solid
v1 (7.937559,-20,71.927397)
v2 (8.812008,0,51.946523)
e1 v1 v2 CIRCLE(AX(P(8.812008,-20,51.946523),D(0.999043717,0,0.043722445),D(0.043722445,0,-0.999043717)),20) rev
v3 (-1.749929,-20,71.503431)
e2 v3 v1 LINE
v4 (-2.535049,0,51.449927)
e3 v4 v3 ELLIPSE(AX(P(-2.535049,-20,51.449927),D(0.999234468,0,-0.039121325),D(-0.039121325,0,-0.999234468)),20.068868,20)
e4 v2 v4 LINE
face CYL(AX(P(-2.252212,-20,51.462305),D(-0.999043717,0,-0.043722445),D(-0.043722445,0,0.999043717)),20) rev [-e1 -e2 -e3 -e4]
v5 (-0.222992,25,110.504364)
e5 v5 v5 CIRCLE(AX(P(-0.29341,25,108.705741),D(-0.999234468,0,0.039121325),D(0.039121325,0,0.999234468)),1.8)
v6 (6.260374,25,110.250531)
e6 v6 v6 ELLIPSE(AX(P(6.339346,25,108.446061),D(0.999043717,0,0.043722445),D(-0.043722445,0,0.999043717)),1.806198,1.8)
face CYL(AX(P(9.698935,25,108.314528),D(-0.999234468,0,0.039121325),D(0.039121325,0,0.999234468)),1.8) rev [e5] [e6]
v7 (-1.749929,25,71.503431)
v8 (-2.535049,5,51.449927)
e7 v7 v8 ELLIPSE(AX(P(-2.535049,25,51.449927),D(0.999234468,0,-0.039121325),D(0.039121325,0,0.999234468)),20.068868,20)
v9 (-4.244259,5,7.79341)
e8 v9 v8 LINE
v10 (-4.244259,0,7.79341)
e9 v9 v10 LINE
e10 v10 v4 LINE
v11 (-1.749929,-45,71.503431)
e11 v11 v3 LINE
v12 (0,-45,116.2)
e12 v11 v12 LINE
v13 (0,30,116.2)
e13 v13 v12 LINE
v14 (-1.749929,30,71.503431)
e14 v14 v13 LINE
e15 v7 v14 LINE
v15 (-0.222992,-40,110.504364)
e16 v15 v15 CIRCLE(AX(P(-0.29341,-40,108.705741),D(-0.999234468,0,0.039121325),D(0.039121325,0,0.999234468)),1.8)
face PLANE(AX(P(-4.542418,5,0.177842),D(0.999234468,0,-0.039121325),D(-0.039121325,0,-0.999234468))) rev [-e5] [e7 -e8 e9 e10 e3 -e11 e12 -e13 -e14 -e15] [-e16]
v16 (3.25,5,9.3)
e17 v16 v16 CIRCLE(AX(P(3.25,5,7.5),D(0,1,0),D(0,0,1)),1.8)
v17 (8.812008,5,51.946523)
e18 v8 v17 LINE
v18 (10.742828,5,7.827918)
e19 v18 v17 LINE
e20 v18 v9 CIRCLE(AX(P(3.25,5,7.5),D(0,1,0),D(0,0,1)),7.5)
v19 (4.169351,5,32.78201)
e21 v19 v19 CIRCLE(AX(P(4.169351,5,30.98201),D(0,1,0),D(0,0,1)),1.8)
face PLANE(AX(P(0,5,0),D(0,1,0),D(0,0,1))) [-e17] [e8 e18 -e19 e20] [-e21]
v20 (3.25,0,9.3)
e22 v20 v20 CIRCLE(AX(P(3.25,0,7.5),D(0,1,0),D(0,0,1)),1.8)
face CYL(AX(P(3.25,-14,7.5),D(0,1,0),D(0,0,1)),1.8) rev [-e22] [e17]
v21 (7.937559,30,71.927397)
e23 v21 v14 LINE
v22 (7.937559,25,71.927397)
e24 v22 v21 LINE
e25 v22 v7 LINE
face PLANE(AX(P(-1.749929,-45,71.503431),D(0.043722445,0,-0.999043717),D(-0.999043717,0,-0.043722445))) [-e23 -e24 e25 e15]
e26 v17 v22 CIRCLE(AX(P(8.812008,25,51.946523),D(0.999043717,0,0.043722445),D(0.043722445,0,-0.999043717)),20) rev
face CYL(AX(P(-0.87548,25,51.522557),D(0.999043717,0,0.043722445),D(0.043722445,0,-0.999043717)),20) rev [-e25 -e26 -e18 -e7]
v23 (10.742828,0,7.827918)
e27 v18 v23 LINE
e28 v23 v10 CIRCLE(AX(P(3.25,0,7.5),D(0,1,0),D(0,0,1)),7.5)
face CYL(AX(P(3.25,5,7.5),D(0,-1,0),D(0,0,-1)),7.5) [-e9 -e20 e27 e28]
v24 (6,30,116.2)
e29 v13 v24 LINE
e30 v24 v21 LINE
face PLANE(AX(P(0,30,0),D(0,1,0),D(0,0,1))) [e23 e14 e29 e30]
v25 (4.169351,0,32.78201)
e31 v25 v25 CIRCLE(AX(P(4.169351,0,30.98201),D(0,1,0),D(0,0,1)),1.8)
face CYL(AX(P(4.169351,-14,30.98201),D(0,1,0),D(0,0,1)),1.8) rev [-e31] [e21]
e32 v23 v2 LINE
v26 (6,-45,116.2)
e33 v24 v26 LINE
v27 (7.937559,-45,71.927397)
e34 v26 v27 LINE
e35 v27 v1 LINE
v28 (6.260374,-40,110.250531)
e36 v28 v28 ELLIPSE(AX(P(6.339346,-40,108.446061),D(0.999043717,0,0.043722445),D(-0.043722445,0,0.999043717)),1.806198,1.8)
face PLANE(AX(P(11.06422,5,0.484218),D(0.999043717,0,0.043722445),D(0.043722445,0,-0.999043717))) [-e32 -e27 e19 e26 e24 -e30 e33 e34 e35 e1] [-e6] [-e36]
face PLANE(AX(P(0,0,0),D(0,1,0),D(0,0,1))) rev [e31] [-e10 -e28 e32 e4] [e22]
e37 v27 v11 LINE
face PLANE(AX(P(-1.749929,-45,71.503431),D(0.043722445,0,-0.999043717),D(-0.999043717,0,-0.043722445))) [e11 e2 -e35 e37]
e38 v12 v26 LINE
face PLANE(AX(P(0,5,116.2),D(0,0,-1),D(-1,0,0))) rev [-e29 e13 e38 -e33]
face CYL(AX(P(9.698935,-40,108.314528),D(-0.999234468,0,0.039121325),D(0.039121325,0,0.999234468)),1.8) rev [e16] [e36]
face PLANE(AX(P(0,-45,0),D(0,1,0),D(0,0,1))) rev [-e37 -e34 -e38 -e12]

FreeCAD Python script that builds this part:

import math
import FreeCAD as App
import Part
import Sketcher


def edges_at(feature, points):
    """Names of the edges that pass closest to the given points."""
    edges = feature.Shape.Edges
    near = lambda p: min(range(len(edges)), key=lambda i: edges[i].distToShape(Part.Vertex(*p))[0])
    return sorted({f"Edge{near(p) + 1}" for p in points})

doc = App.newDocument("Part")
body = doc.addObject("PartDesign::Body", "Body")

sketch1 = body.newObject("Sketcher::SketchObject", "Sketch")
sketch1.AttachmentSupport = (doc.getObject("XZ_Plane"), [""])
sketch1.MapMode = "FlatFace"
sketch1.addGeometry(Part.ArcOfCircle(Part.Circle(App.Vector(3.25, 7.5, 0), App.Vector(0, 0, 1), 7.5), math.radians(177.757941), math.radians(244.320711)), False)
sketch1.addGeometry(Part.LineSegment(App.Vector(-4.244259, 7.79341, 0), App.Vector(0, 14.259253, 0)), False)
sketch1.addGeometry(Part.LineSegment(App.Vector(0, 14.259253, 0), App.Vector(0, 0.740747, 0)), False)
sketch1.addGeometry(Part.LineSegment(App.Vector(6, 0.522357, 0), App.Vector(6, 14.477643, 0)), False)
sketch1.addGeometry(Part.LineSegment(App.Vector(6, 14.477643, 0), App.Vector(10.742828, 7.827918, 0)), False)
sketch1.addGeometry(Part.ArcOfCircle(Part.Circle(App.Vector(3.249998, 7.5, 0), App.Vector(0, 0, 1), 7.500002), math.radians(0), math.radians(2.50591)), False)
sketch1.addGeometry(Part.ArcOfCircle(Part.Circle(App.Vector(3.25, 7.5, 0), App.Vector(0, 0, 1), 7.5), math.radians(-68.489812), math.radians(0)), False)
sketch1.addGeometry(Part.LineSegment(App.Vector(0, 0.740747, 0), App.Vector(0, 14.259253, 0)), False)
sketch1.addGeometry(Part.ArcOfCircle(Part.Circle(App.Vector(3.25, 7.5, 0), App.Vector(0, 0, 1), 7.5), math.radians(68.489812), math.radians(115.679289)), False)
sketch1.addGeometry(Part.LineSegment(App.Vector(6, 14.477643, 0), App.Vector(6, 0.522357, 0)), False)
sketch1.addGeometry(Part.ArcOfCircle(Part.Circle(App.Vector(3.25, 7.5, 0), App.Vector(0, 0, 1), 7.5), math.radians(-90), math.radians(-68.489812)), False)
sketch1.addGeometry(Part.ArcOfCircle(Part.Circle(App.Vector(3.25, 7.5, 0), App.Vector(0, 0, 1), 7.5), math.radians(-115.679289), math.radians(-90)), False)
sketch1.addGeometry(Part.ArcOfCircle(Part.Circle(App.Vector(3.25, 7.5, 0), App.Vector(0, 0, 1), 7.5), math.radians(115.679289), math.radians(177.757941)), False)
sketch1.addGeometry(Part.LineSegment(App.Vector(-4.244259, 7.79341, 0), App.Vector(0, 116.2, 0)), False)
sketch1.addGeometry(Part.LineSegment(App.Vector(0, 116.2, 0), App.Vector(0, 14.259253, 0)), False)
sketch1.addGeometry(Part.LineSegment(App.Vector(6, 14.477643, 0), App.Vector(6, 116.2, 0)), False)
sketch1.addGeometry(Part.LineSegment(App.Vector(6, 116.2, 0), App.Vector(10.742828, 7.827918, 0)), False)
sketch1.addGeometry(Part.ArcOfCircle(Part.Circle(App.Vector(3.25, 7.5, 0), App.Vector(0, 0, 1), 7.5), math.radians(2.50591), math.radians(68.489812)), False)
sketch1.addGeometry(Part.LineSegment(App.Vector(0, 14.259253, 0), App.Vector(0, 116.2, 0)), False)
sketch1.addGeometry(Part.LineSegment(App.Vector(0, 116.2, 0), App.Vector(6, 116.2, 0)), False)
sketch1.addGeometry(Part.LineSegment(App.Vector(6, 116.2, 0), App.Vector(6, 14.477643, 0)), False)
sketch1.addGeometry(Part.ArcOfCircle(Part.Circle(App.Vector(3.25, 7.5, 0), App.Vector(0, 0, 1), 7.5), math.radians(68.489812), math.radians(115.679289)), False)
sketch1.addGeometry(Part.LineSegment(App.Vector(10.742828, 7.827918, 0), App.Vector(6, 14.477643, 0)), False)
sketch1.addGeometry(Part.ArcOfCircle(Part.Circle(App.Vector(3.25, 7.5, 0), App.Vector(0, 0, 1), 7.5), math.radians(2.50591), math.radians(68.489812)), False)
sketch1.addGeometry(Part.LineSegment(App.Vector(0, 14.259253, 0), App.Vector(-4.244259, 7.79341, 0)), False)
sketch1.addGeometry(Part.ArcOfCircle(Part.Circle(App.Vector(3.25, 7.5, 0), App.Vector(0, 0, 1), 7.5), math.radians(115.679289), math.radians(177.757941)), False)
sketch1.addConstraint(Sketcher.Constraint("Coincident", 0, 1, 1, 1))
sketch1.addConstraint(Sketcher.Constraint("Coincident", 1, 2, 2, 1))
sketch1.addConstraint(Sketcher.Constraint("Coincident", 2, 2, 0, 2))
sketch1.addConstraint(Sketcher.Constraint("Coincident", 3, 2, 4, 1))
sketch1.addConstraint(Sketcher.Constraint("Coincident", 4, 2, 5, 2))
sketch1.addConstraint(Sketcher.Constraint("Tangent", 5, 1, 6, 2))
sketch1.addConstraint(Sketcher.Constraint("Coincident", 6, 1, 3, 1))
sketch1.addConstraint(Sketcher.Constraint("Coincident", 7, 2, 8, 2))
sketch1.addConstraint(Sketcher.Constraint("Coincident", 8, 1, 9, 1))
sketch1.addConstraint(Sketcher.Constraint("Coincident", 9, 2, 10, 2))
sketch1.addConstraint(Sketcher.Constraint("Tangent", 10, 1, 11, 2))
sketch1.addConstraint(Sketcher.Constraint("Coincident", 11, 1, 7, 1))
sketch1.addConstraint(Sketcher.Constraint("Tangent", 12, 2, 13, 1))
sketch1.addConstraint(Sketcher.Constraint("Coincident", 13, 2, 14, 1))
sketch1.addConstraint(Sketcher.Constraint("Coincident", 14, 2, 12, 1))
sketch1.addConstraint(Sketcher.Constraint("Coincident", 15, 2, 16, 1))
sketch1.addConstraint(Sketcher.Constraint("Tangent", 16, 2, 17, 1))
sketch1.addConstraint(Sketcher.Constraint("Coincident", 17, 2, 15, 1))
sketch1.addConstraint(Sketcher.Constraint("Coincident", 18, 2, 19, 1))
sketch1.addConstraint(Sketcher.Constraint("Coincident", 19, 2, 20, 1))
sketch1.addConstraint(Sketcher.Constraint("Coincident", 20, 2, 21, 1))
sketch1.addConstraint(Sketcher.Constraint("Coincident", 21, 2, 18, 1))
sketch1.addConstraint(Sketcher.Constraint("Coincident", 22, 1, 23, 1))
sketch1.addConstraint(Sketcher.Constraint("Coincident", 23, 2, 22, 2))
sketch1.addConstraint(Sketcher.Constraint("Coincident", 24, 1, 25, 1))
sketch1.addConstraint(Sketcher.Constraint("Coincident", 25, 2, 24, 2))
sketch1.addConstraint(Sketcher.Constraint("Vertical", 2))
sketch1.addConstraint(Sketcher.Constraint("Vertical", 3))
sketch1.addConstraint(Sketcher.Constraint("Vertical", 7))
sketch1.addConstraint(Sketcher.Constraint("Vertical", 9))
sketch1.addConstraint(Sketcher.Constraint("Vertical", 14))
sketch1.addConstraint(Sketcher.Constraint("Vertical", 15))
sketch1.addConstraint(Sketcher.Constraint("Vertical", 18))
sketch1.addConstraint(Sketcher.Constraint("Horizontal", 19))
sketch1.addConstraint(Sketcher.Constraint("Vertical", 20))
sketch1.addConstraint(Sketcher.Constraint("Coincident", 5, 3, 0, 3))
sketch1.addConstraint(Sketcher.Constraint("Coincident", 8, 3, 0, 3))
sketch1.addConstraint(Sketcher.Constraint("Coincident", 10, 3, 0, 3))
sketch1.addConstraint(Sketcher.Constraint("Coincident", 12, 3, 0, 3))
sketch1.addConstraint(Sketcher.Constraint("Coincident", 17, 3, 0, 3))
sketch1.addConstraint(Sketcher.Constraint("Coincident", 21, 3, 0, 3))
sketch1.addConstraint(Sketcher.Constraint("Coincident", 23, 3, 0, 3))
sketch1.addConstraint(Sketcher.Constraint("Coincident", 25, 3, 0, 3))
sketch1.addConstraint(Sketcher.Constraint("Coincident", 7, 2, 1, 2))
sketch1.addConstraint(Sketcher.Constraint("Coincident", 8, 1, 3, 2))
sketch1.addConstraint(Sketcher.Constraint("Coincident", 12, 2, 0, 1))
sketch1.addConstraint(Sketcher.Constraint("Coincident", 14, 2, 1, 2))
sketch1.addConstraint(Sketcher.Constraint("Coincident", 16, 2, 4, 2))
sketch1.addConstraint(Sketcher.Constraint("Coincident", 17, 2, 3, 2))
sketch1.addConstraint(Sketcher.Constraint("Coincident", 18, 2, 13, 2))
sketch1.addConstraint(Sketcher.Constraint("Coincident", 19, 2, 15, 2))
sketch1.addConstraint(Sketcher.Constraint("Coincident", 22, 1, 4, 2))
sketch1.addConstraint(Sketcher.Constraint("Coincident", 24, 1, 1, 2))
sketch1.addConstraint(Sketcher.Constraint("Equal", 5, 6))
sketch1.addConstraint(Sketcher.Constraint("Equal", 8, 10))
sketch1.addConstraint(Sketcher.Constraint("Equal", 10, 11))
sketch1.addConstraint(Sketcher.Constraint("Equal", 17, 21))
sketch1.addConstraint(Sketcher.Constraint("PointOnObject", 1, 2, -2))
sketch1.addConstraint(Sketcher.Constraint("PointOnObject", 10, 1, -1))
sketch1.addConstraint(Sketcher.Constraint("Parallel", 4, 22))
sketch1.addConstraint(Sketcher.Constraint("Parallel", 1, 24))
sketch1.addConstraint(Sketcher.Constraint("Horizontal", 25, 3, 5, 1))
sketch1.addConstraint(Sketcher.Constraint("Vertical", 25, 3, 10, 1))
sketch1.addConstraint(Sketcher.Constraint("Radius", 0, 7.5))
sketch1.addConstraint(Sketcher.Constraint("DistanceX", 19, 1, 19, 2, 6.0))
sketch1.addConstraint(Sketcher.Constraint("DistanceY", -1, 1, 13, 2, 116.2))
sketch1.addConstraint(Sketcher.Constraint("DistanceX", -1, 1, 0, 3, 3.25))
pad1 = body.newObject("PartDesign::Pad", "Pad")
pad1.Profile = sketch1
pad1.Length = 5
pad1.Reversed = True

sketch2 = body.newObject("Sketcher::SketchObject", "Sketch001")
sketch2.AttachmentSupport = (doc.getObject("XZ_Plane"), [""])
sketch2.MapMode = "FlatFace"
sketch2.AttachmentOffset = App.Placement(App.Vector(0, 0, -5), App.Rotation())
sketch2.addGeometry(Part.LineSegment(App.Vector(7.937559, 71.927397, 0), App.Vector(-1.749929, 71.503431, 0)), False)
sketch2.addGeometry(Part.LineSegment(App.Vector(-1.749929, 71.503431, 0), App.Vector(0, 116.2, 0)), False)
sketch2.addGeometry(Part.LineSegment(App.Vector(0, 116.2, 0), App.Vector(6, 116.2, 0)), False)
sketch2.addGeometry(Part.LineSegment(App.Vector(6, 116.2, 0), App.Vector(7.937559, 71.927397, 0)), False)
sketch2.addConstraint(Sketcher.Constraint("Coincident", 0, 2, 1, 1))
sketch2.addConstraint(Sketcher.Constraint("Coincident", 1, 2, 2, 1))
sketch2.addConstraint(Sketcher.Constraint("Coincident", 2, 2, 3, 1))
sketch2.addConstraint(Sketcher.Constraint("Coincident", 3, 2, 0, 1))
sketch2.addConstraint(Sketcher.Constraint("Horizontal", 2))
sketch2.addConstraint(Sketcher.Constraint("PointOnObject", 1, 2, -2))
sketch2.addConstraint(Sketcher.Constraint("Perpendicular", 0, 3))
sketch2.addConstraint(Sketcher.Constraint("DistanceX", 2, 1, 2, 2, 6.0))
sketch2.addConstraint(Sketcher.Constraint("DistanceY", -1, 1, 1, 2, 116.2))
sketch2.addConstraint(Sketcher.Constraint("Distance", 0, 9.696761))
sketch2.addConstraint(Sketcher.Constraint("Distance", 1, 44.730812))
sketch2.addConstraint(Sketcher.Constraint("Distance", 3, 44.31498))
pad2 = body.newObject("PartDesign::Pad", "Pad001")
pad2.Profile = sketch2
pad2.Type = "TwoLengths"
pad2.Length = 25
pad2.Length2 = 50
pad2.Reversed = True
doc.recompute()

fillet = body.newObject("PartDesign::Fillet", "Fillet")
fillet.Base = (pad2, edges_at(pad2, [(3.094, 5, 71.715), (3.094, 0, 71.715)]))
fillet.Radius = 20

sketch3 = body.newObject("Sketcher::SketchObject", "Sketch002")
sketch3.AttachmentSupport = (doc.getObject("XZ_Plane"), [""])
sketch3.MapMode = "FlatFace"
sketch3.AttachmentOffset = App.Placement(App.Vector(0, 0, -5), App.Rotation())
sketch3.addGeometry(Part.Circle(App.Vector(3.25, 7.5, 0), App.Vector(0, 0, 1), 1.8), False)
sketch3.addGeometry(Part.Circle(App.Vector(4.169351, 30.98201, 0), App.Vector(0, 0, 1), 1.8), False)
sketch3.addConstraint(Sketcher.Constraint("Equal", 0, 1))
sketch3.addConstraint(Sketcher.Constraint("Diameter", 0, 3.6))
sketch3.addConstraint(Sketcher.Constraint("DistanceY", -1, 1, 0, 3, 7.5))
sketch3.addConstraint(Sketcher.Constraint("DistanceX", -1, 1, 0, 3, 3.25))
sketch3.addConstraint(Sketcher.Constraint("DistanceX", -1, 1, 1, 3, 4.169351))
sketch3.addConstraint(Sketcher.Constraint("DistanceY", -1, 1, 1, 3, 30.98201))
pocket1 = body.newObject("PartDesign::Pocket", "Pocket")
pocket1.Profile = sketch3
pocket1.Length = 19
pocket1.Reversed = True

sketch4 = body.newObject("Sketcher::SketchObject", "Sketch003")
sketch4.Placement = App.Placement(App.Vector(-4.542418, 0, 0.177842), App.Rotation(App.Vector(0.039121325, 0, 0.999234468), App.Vector(0, 1, 0), App.Vector(-0.999234468, 0, 0.039121325), "ZXY"))
sketch4.addGeometry(Part.Circle(App.Vector(108.611045, -40, 0), App.Vector(0, 0, 1), 1.8), False)
sketch4.addGeometry(Part.Circle(App.Vector(108.611045, 25, 0), App.Vector(0, 0, 1), 1.8), False)
sketch4.addConstraint(Sketcher.Constraint("Equal", 0, 1))
sketch4.addConstraint(Sketcher.Constraint("Vertical", 0, 3, 1, 3))
sketch4.addConstraint(Sketcher.Constraint("Diameter", 0, 3.6))
sketch4.addConstraint(Sketcher.Constraint("DistanceY", 0, 3, -1, 1, 40.0))
sketch4.addConstraint(Sketcher.Constraint("DistanceY", -1, 1, 1, 3, 25.0))
sketch4.addConstraint(Sketcher.Constraint("DistanceX", -1, 1, 0, 3, 108.611045))
pocket2 = body.newObject("PartDesign::Pocket", "Pocket001")
pocket2.Profile = sketch4
pocket2.Length = 10

doc.recompute()
